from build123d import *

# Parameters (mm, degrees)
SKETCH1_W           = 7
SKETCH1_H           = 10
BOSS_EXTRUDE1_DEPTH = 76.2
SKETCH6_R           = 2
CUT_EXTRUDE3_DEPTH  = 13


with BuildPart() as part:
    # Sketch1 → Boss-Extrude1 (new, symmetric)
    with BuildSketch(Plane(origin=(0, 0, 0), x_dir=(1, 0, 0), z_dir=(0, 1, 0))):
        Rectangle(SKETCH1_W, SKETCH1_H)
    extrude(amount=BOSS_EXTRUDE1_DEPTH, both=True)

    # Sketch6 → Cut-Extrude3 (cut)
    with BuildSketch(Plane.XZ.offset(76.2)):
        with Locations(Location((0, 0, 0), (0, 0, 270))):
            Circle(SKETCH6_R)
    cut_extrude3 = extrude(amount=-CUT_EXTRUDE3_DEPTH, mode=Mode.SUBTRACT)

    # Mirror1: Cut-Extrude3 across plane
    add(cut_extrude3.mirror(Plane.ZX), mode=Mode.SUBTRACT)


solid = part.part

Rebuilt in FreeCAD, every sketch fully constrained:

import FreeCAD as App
import Part
import Sketcher

doc = App.newDocument("Part")
body = doc.addObject("PartDesign::Body", "Body")

sketch1 = doc.addObject("Sketcher::SketchObject", "Sketch")
body.addObject(sketch1)
sketch1.AttachmentSupport = (doc.XZ_Plane, [""])
sketch1.MapMode = "FlatFace"
sketch1.addGeometry(Part.LineSegment(App.Vector(-3.5, -5, 0), App.Vector(-3.5, 5, 0)), False)
sketch1.addGeometry(Part.LineSegment(App.Vector(-3.5, 5, 0), App.Vector(3.5, 5, 0)), False)
sketch1.addGeometry(Part.LineSegment(App.Vector(3.5, 5, 0), App.Vector(3.5, -5, 0)), False)
sketch1.addGeometry(Part.LineSegment(App.Vector(3.5, -5, 0), App.Vector(-3.5, -5, 0)), False)
sketch1.addConstraint(Sketcher.Constraint("Coincident", 0, 2, 1, 1))
sketch1.addConstraint(Sketcher.Constraint("Coincident", 1, 2, 2, 1))
sketch1.addConstraint(Sketcher.Constraint("Coincident", 2, 2, 3, 1))
sketch1.addConstraint(Sketcher.Constraint("Coincident", 3, 2, 0, 1))
sketch1.addConstraint(Sketcher.Constraint("Vertical", 0))
sketch1.addConstraint(Sketcher.Constraint("Horizontal", 1))
sketch1.addConstraint(Sketcher.Constraint("Vertical", 2))
sketch1.addConstraint(Sketcher.Constraint("Horizontal", 3))
sketch1.addConstraint(Sketcher.Constraint("Symmetric", 0, 2, 2, 2, -1, 1))
sketch1.addConstraint(Sketcher.Constraint("DistanceX", 1, 1, 1, 2, 7.0))
sketch1.addConstraint(Sketcher.Constraint("DistanceY", 0, 1, 0, 2, 10.0))
pad1 = doc.addObject("PartDesign::Pad", "Pad")
body.addObject(pad1)
pad1.Profile = sketch1
pad1.Length = 152.4
pad1.Midplane = True

sketch2 = doc.addObject("Sketcher::SketchObject", "Sketch001")
body.addObject(sketch2)
sketch2.AttachmentSupport = (doc.XZ_Plane, [""])
sketch2.MapMode = "FlatFace"
sketch2.AttachmentOffset = App.Placement(App.Vector(0, 0, 76.2), App.Rotation())
sketch2.addGeometry(Part.Circle(App.Vector(0, 0, 0), App.Vector(0, 0, 1), 2), False)
sketch2.addConstraint(Sketcher.Constraint("Coincident", 0, 3, -1, 1))
sketch2.addConstraint(Sketcher.Constraint("Diameter", 0, 4.0))
pocket1 = doc.addObject("PartDesign::Pocket", "Pocket")
body.addObject(pocket1)
pocket1.Profile = sketch2
pocket1.Length = 13
doc.recompute()

mirrored = doc.addObject("PartDesign::Mirrored", "Mirrored")
body.addObject(mirrored)
mirrored.Originals = [pocket1]
mirrored.MirrorPlane = (doc.XZ_Plane, [""])
body.Tip = mirrored

doc.recompute()
